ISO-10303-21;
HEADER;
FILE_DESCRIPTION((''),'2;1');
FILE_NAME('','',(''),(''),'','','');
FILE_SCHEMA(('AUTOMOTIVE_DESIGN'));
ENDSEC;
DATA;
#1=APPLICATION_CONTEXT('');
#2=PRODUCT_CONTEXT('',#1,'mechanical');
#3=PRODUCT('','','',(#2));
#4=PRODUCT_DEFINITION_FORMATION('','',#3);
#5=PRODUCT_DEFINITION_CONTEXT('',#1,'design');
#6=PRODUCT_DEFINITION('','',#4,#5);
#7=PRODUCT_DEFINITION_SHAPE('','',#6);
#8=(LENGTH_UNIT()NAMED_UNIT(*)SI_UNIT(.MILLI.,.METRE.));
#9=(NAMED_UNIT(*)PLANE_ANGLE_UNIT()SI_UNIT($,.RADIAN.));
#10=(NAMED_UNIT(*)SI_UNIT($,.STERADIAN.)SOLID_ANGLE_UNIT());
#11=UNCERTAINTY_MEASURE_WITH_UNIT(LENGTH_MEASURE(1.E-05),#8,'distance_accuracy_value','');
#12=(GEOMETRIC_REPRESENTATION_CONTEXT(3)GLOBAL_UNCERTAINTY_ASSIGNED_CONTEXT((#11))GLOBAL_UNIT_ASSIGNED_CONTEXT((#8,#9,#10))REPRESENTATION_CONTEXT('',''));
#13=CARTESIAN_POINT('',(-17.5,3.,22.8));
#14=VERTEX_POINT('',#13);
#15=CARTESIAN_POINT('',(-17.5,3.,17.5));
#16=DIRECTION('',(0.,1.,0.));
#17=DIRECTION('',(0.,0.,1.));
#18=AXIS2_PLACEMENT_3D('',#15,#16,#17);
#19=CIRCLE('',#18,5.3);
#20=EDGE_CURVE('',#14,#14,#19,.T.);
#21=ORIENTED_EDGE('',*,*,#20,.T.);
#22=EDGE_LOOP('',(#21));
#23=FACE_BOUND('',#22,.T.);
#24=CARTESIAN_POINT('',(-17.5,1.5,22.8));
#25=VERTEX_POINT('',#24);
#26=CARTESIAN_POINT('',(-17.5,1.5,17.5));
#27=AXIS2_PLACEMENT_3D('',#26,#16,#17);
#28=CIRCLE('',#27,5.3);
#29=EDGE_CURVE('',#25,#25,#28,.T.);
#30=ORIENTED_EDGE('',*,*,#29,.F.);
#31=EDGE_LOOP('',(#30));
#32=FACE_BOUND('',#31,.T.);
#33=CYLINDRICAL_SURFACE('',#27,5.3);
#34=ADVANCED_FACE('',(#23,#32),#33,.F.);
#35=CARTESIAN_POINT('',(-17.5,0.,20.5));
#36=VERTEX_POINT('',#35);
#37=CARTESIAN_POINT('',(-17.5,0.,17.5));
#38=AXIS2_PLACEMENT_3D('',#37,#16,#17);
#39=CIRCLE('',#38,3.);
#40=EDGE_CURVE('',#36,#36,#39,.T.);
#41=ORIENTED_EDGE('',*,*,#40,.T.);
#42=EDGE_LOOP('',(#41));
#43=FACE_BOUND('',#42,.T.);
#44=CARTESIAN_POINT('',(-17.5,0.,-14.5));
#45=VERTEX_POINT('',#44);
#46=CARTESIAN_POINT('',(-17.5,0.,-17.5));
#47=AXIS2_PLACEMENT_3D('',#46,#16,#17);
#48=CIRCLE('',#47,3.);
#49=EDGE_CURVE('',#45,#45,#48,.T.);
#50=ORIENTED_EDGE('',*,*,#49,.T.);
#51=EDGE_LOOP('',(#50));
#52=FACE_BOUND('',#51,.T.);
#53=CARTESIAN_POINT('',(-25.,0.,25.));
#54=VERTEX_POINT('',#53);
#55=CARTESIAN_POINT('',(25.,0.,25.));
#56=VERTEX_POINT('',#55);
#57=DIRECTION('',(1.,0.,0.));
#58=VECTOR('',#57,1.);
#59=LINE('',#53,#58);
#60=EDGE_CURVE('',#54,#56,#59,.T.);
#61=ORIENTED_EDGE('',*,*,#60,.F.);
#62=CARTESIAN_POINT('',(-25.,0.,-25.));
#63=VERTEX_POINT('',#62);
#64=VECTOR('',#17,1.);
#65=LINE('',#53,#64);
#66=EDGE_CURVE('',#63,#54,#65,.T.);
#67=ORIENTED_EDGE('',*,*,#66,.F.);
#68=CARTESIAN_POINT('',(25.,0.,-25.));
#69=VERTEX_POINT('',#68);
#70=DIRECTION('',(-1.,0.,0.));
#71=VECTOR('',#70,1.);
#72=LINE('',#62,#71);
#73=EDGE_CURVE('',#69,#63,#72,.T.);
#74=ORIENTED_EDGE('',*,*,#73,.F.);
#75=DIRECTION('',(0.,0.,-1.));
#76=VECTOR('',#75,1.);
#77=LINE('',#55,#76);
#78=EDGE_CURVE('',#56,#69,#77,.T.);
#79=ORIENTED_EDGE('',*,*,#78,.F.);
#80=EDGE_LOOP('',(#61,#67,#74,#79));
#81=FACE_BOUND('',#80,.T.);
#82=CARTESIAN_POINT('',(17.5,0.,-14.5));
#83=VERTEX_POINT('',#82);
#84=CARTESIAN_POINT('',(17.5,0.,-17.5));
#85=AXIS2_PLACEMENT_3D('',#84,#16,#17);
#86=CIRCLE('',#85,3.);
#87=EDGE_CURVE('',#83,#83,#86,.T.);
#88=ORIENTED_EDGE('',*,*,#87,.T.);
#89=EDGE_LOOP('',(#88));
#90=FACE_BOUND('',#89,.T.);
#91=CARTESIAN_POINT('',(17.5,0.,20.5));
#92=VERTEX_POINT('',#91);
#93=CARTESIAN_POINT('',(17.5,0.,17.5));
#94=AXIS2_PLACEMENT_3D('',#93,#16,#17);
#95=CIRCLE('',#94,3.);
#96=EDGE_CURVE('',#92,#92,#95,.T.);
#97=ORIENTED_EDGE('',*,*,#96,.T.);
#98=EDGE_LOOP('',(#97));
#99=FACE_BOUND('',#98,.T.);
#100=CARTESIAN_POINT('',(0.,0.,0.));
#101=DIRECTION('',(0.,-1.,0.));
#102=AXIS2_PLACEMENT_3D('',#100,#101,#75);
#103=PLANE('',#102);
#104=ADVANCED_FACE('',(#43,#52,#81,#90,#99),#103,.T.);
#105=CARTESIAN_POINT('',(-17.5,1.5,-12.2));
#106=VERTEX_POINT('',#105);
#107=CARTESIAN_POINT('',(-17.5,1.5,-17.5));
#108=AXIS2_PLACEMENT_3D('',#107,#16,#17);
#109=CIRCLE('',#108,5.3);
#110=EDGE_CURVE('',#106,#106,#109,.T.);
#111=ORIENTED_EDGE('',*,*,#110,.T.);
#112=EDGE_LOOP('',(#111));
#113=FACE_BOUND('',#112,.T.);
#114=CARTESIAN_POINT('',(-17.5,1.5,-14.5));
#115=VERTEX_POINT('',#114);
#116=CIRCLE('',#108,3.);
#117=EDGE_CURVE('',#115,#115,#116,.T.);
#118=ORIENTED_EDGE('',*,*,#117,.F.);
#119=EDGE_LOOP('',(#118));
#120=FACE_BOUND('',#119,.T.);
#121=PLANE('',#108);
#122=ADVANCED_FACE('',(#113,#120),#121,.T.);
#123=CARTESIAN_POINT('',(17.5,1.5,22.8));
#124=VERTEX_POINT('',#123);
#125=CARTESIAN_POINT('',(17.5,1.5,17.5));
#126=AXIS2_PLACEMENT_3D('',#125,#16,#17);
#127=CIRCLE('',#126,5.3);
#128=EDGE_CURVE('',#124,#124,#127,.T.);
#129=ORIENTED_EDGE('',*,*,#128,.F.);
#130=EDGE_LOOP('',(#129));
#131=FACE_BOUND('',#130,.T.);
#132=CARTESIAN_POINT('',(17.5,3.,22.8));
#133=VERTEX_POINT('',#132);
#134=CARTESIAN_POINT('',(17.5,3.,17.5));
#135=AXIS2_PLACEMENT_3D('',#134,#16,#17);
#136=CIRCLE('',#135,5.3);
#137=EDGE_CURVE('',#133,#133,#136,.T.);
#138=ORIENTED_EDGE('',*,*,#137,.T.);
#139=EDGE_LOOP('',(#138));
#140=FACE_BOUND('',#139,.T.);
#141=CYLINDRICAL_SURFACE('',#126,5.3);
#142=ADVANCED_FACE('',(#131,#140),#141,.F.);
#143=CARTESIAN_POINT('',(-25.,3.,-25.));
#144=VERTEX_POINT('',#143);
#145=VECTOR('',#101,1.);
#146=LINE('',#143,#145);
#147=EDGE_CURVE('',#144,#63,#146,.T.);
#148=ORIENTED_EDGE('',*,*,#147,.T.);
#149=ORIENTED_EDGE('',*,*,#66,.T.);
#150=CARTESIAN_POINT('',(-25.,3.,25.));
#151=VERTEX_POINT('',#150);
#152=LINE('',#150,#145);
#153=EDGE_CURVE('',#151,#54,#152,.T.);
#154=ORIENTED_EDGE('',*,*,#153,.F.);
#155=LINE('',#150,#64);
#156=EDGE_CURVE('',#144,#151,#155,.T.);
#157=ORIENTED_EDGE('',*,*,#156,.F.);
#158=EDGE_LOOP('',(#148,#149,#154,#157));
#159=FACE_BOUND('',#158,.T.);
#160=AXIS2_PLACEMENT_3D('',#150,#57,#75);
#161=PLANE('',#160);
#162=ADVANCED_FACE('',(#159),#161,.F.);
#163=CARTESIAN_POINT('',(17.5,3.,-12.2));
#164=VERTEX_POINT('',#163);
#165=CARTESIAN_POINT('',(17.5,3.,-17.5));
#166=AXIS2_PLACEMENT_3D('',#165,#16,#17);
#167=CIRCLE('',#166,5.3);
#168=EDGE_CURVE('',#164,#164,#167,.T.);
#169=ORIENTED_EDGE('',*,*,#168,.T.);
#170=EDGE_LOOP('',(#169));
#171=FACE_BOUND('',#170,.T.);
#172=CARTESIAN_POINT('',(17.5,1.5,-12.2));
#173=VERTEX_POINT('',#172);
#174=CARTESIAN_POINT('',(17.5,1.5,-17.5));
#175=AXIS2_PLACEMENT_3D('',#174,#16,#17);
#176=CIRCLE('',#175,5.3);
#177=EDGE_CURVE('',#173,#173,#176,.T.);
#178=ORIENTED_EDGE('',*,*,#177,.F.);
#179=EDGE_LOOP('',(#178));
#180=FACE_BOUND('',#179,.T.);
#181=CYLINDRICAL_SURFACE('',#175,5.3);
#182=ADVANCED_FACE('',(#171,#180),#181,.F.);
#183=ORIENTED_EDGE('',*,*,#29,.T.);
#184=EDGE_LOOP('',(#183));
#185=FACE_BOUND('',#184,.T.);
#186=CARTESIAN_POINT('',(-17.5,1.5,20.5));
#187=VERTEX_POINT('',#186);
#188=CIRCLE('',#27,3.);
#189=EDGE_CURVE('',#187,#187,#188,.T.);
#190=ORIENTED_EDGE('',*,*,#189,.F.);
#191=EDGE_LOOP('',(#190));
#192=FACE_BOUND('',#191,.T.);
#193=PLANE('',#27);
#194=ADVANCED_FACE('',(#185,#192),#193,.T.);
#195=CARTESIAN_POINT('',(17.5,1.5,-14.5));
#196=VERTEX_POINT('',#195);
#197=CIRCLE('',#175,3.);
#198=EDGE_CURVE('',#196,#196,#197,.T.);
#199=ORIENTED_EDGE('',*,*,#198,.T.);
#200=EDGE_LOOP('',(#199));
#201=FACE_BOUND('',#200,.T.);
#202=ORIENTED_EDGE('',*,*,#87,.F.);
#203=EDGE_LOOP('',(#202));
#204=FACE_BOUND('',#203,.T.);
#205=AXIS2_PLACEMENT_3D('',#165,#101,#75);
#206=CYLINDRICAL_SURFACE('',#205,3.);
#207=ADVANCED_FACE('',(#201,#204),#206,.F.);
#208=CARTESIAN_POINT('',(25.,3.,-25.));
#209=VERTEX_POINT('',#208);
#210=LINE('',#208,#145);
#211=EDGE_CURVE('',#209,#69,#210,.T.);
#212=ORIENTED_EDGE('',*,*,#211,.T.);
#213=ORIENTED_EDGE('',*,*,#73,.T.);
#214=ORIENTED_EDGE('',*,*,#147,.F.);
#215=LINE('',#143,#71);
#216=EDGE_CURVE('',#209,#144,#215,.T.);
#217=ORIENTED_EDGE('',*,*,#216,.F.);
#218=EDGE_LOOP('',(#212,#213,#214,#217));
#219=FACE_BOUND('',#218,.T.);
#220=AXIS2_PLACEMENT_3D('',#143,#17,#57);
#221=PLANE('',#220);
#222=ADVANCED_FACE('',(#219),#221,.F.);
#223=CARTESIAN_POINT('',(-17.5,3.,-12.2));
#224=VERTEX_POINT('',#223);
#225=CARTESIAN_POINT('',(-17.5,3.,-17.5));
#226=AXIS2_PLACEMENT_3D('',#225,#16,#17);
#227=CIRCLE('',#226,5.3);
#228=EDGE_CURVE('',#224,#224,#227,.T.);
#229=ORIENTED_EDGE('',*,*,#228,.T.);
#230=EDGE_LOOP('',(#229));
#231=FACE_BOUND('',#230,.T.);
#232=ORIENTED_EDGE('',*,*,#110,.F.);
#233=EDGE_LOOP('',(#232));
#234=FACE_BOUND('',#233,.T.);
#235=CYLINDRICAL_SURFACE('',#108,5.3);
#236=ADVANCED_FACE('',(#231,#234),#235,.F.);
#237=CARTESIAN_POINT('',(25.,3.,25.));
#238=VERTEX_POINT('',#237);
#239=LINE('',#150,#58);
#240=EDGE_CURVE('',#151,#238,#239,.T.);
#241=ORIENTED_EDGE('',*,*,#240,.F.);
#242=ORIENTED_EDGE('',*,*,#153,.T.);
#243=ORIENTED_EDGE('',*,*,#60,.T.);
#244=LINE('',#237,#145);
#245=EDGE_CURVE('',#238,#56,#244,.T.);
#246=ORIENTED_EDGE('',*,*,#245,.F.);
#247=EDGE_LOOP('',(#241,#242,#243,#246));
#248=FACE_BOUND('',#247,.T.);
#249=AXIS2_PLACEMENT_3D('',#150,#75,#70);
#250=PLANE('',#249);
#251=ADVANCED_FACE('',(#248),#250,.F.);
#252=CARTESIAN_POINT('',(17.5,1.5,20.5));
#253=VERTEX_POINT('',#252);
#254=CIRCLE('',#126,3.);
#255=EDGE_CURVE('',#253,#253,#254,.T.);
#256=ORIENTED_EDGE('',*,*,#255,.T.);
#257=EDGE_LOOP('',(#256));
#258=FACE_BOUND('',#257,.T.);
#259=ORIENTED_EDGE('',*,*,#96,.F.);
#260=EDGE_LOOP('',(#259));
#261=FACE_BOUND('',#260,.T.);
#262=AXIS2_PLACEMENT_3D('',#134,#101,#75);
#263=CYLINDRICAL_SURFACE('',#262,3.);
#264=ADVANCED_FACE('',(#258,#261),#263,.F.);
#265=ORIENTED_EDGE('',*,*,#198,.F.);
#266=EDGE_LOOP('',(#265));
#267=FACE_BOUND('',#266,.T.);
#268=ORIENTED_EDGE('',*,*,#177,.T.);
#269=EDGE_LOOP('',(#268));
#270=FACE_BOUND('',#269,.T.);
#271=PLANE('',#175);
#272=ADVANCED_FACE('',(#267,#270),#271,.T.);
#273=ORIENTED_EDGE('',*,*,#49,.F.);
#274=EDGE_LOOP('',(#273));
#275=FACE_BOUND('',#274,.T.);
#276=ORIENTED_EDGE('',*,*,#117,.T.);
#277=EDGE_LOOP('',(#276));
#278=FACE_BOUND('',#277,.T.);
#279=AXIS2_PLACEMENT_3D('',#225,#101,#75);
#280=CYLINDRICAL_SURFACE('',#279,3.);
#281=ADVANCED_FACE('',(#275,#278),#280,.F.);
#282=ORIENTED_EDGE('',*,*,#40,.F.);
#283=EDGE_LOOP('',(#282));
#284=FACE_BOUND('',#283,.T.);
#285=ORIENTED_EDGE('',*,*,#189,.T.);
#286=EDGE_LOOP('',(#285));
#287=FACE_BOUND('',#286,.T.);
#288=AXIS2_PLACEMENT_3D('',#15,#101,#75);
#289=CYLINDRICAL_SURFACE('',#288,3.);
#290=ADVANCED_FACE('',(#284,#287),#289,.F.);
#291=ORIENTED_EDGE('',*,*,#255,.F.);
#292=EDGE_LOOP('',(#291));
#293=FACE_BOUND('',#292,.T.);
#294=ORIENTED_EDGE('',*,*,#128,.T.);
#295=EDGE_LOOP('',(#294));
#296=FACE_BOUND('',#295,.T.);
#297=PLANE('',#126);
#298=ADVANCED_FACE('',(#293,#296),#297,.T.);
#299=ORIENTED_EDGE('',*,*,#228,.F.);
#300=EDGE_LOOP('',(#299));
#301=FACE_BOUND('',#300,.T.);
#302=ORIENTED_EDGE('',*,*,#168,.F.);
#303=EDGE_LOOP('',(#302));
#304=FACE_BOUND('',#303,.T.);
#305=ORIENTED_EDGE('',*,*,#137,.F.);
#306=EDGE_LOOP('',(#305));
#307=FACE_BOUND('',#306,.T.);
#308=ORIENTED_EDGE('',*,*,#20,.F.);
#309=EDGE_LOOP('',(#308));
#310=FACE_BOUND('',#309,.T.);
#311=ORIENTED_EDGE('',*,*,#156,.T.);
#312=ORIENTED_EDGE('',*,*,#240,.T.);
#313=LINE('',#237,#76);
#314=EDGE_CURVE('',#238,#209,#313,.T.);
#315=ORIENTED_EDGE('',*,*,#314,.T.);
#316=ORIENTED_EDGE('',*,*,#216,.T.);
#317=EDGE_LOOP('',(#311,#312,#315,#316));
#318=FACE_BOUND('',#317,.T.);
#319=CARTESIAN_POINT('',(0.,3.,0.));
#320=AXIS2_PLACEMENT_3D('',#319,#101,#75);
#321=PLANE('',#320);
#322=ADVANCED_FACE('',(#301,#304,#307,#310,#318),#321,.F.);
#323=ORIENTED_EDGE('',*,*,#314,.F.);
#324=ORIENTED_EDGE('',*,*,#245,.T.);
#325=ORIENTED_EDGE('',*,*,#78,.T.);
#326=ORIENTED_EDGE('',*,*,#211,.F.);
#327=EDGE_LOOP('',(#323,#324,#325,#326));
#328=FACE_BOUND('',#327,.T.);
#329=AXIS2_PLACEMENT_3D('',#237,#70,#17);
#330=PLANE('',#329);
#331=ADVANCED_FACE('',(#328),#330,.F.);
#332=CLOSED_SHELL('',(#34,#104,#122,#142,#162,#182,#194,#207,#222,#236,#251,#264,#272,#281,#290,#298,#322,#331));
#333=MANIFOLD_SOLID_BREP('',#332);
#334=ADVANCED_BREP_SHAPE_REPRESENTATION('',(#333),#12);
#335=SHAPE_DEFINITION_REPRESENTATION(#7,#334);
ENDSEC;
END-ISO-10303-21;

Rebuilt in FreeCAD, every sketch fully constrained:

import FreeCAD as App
import Part
import Sketcher

V = App.Vector
Q = App.Units.Quantity

doc = App.newDocument("Part")
params = doc.addObject("Spreadsheet::Sheet", "Params")
for row, (alias, value) in enumerate([
    ("sketch1_diameter", "6 mm"),
    ("sketch1_width", "50 mm"),
    ("pad1_length", "3 mm"),
    ("sketch2_diameter", "10.6 mm"),
    ("pocket1_length", "1.5 mm"),
], start=1):
    params.set(f"A{row}", alias)
    params.set(f"B{row}", "=" + value)
    params.setAlias(f"B{row}", alias)

body = doc.addObject("PartDesign::Body", "Body")

# Sketch on XZ plane
sketch1 = body.newObject("Sketcher::SketchObject", "Sketch")
sketch1.AttachmentSupport = (doc.getObject("XZ_Plane"), [""])
sketch1.MapMode = "FlatFace"
sketch1.addGeometry(Part.LineSegment(V(-25, -25, 0), V(-25, 25, 0)), False)
sketch1.addGeometry(Part.LineSegment(V(-25, 25, 0), V(25, 25, 0)), False)
sketch1.addGeometry(Part.LineSegment(V(25, 25, 0), V(25, -25, 0)), False)
sketch1.addGeometry(Part.LineSegment(V(25, -25, 0), V(-25, -25, 0)), False)
sketch1.addGeometry(Part.Circle(V(-17.5, 17.5, 0), V(0, 0, 1), 3), False)
sketch1.addGeometry(Part.Circle(V(17.5, 17.5, 0), V(0, 0, 1), 3), False)
sketch1.addGeometry(Part.Circle(V(-17.5, -17.5, 0), V(0, 0, 1), 3), False)
sketch1.addGeometry(Part.Circle(V(17.5, -17.5, 0), V(0, 0, 1), 3), False)
sketch1.addConstraint(Sketcher.Constraint("Coincident", 0, 2, 1, 1))
sketch1.addConstraint(Sketcher.Constraint("Coincident", 1, 2, 2, 1))
sketch1.addConstraint(Sketcher.Constraint("Coincident", 2, 2, 3, 1))
sketch1.addConstraint(Sketcher.Constraint("Coincident", 3, 2, 0, 1))
sketch1.addConstraint(Sketcher.Constraint("Vertical", 0))
sketch1.addConstraint(Sketcher.Constraint("Horizontal", 1))
sketch1.addConstraint(Sketcher.Constraint("Vertical", 2))
sketch1.addConstraint(Sketcher.Constraint("Horizontal", 3))
sketch1.addConstraint(Sketcher.Constraint("Equal", 4, 5))
sketch1.addConstraint(Sketcher.Constraint("Equal", 5, 6))
sketch1.addConstraint(Sketcher.Constraint("Equal", 6, 7))
sketch1.addConstraint(Sketcher.Constraint("Symmetric", 5, 3, 6, 3, -1, 1))
sketch1.addConstraint(Sketcher.Constraint("Symmetric", 4, 3, 7, 3, -1, 1))
sketch1.addConstraint(Sketcher.Constraint("Symmetric", 0, 2, 2, 2, -1, 1))
sketch1.addConstraint(Sketcher.Constraint("Symmetric", 4, 3, 5, 3, -2))
sketch1.addConstraint(Sketcher.Constraint("Equal", 3, 0))
sketch1.addConstraint(Sketcher.Constraint("Diameter", 4, Q("6 mm")))
sketch1.addConstraint(Sketcher.Constraint("DistanceX", 1, 1, 1, 2, Q("50 mm")))
sketch1.addConstraint(Sketcher.Constraint("DistanceX", 4, 3, 5, 3, Q("35 mm")))
sketch1.addConstraint(Sketcher.Constraint("DistanceY", 6, 3, 4, 3, Q("35 mm")))
sketch1.setExpression("Constraints[16]", "Params.sketch1_diameter")
sketch1.setExpression("Constraints[17]", "Params.sketch1_width")
pad1 = body.newObject("PartDesign::Pad", "Pad")
pad1.Profile = sketch1
pad1.setExpression("Length", "Params.pad1_length")
pad1.Reversed = True

# Sketch on XZ plane
sketch2 = body.newObject("Sketcher::SketchObject", "Sketch001")
sketch2.AttachmentSupport = (doc.getObject("XZ_Plane"), [""])
sketch2.MapMode = "FlatFace"
sketch2.AttachmentOffset = App.Placement(V(0, 0, -3), App.Rotation())
sketch2.addGeometry(Part.Circle(V(-17.5, -17.5, 0), V(0, 0, 1), 5.3), False)
sketch2.addGeometry(Part.Circle(V(17.5, -17.5, 0), V(0, 0, 1), 5.3), False)
sketch2.addGeometry(Part.Circle(V(17.5, 17.5, 0), V(0, 0, 1), 5.3), False)
sketch2.addGeometry(Part.Circle(V(-17.5, 17.5, 0), V(0, 0, 1), 5.3), False)
sketch2.addConstraint(Sketcher.Constraint("Equal", 0, 1))
sketch2.addConstraint(Sketcher.Constraint("Equal", 1, 2))
sketch2.addConstraint(Sketcher.Constraint("Equal", 2, 3))
sketch2.addConstraint(Sketcher.Constraint("Symmetric", 0, 3, 2, 3, -1, 1))
sketch2.addConstraint(Sketcher.Constraint("Symmetric", 1, 3, 3, 3, -1, 1))
sketch2.addConstraint(Sketcher.Constraint("Symmetric", 0, 3, 1, 3, -2))
sketch2.addConstraint(Sketcher.Constraint("Diameter", 0, Q("10.6 mm")))
sketch2.addConstraint(Sketcher.Constraint("DistanceX", 0, 3, 1, 3, Q("35 mm")))
sketch2.addConstraint(Sketcher.Constraint("DistanceY", 1, 3, 2, 3, Q("35 mm")))
sketch2.setExpression("Constraints[6]", "Params.sketch2_diameter")
pocket1 = body.newObject("PartDesign::Pocket", "Pocket")
pocket1.Profile = sketch2
pocket1.setExpression("Length", "Params.pocket1_length")
pocket1.Reversed = True

doc.recompute()
